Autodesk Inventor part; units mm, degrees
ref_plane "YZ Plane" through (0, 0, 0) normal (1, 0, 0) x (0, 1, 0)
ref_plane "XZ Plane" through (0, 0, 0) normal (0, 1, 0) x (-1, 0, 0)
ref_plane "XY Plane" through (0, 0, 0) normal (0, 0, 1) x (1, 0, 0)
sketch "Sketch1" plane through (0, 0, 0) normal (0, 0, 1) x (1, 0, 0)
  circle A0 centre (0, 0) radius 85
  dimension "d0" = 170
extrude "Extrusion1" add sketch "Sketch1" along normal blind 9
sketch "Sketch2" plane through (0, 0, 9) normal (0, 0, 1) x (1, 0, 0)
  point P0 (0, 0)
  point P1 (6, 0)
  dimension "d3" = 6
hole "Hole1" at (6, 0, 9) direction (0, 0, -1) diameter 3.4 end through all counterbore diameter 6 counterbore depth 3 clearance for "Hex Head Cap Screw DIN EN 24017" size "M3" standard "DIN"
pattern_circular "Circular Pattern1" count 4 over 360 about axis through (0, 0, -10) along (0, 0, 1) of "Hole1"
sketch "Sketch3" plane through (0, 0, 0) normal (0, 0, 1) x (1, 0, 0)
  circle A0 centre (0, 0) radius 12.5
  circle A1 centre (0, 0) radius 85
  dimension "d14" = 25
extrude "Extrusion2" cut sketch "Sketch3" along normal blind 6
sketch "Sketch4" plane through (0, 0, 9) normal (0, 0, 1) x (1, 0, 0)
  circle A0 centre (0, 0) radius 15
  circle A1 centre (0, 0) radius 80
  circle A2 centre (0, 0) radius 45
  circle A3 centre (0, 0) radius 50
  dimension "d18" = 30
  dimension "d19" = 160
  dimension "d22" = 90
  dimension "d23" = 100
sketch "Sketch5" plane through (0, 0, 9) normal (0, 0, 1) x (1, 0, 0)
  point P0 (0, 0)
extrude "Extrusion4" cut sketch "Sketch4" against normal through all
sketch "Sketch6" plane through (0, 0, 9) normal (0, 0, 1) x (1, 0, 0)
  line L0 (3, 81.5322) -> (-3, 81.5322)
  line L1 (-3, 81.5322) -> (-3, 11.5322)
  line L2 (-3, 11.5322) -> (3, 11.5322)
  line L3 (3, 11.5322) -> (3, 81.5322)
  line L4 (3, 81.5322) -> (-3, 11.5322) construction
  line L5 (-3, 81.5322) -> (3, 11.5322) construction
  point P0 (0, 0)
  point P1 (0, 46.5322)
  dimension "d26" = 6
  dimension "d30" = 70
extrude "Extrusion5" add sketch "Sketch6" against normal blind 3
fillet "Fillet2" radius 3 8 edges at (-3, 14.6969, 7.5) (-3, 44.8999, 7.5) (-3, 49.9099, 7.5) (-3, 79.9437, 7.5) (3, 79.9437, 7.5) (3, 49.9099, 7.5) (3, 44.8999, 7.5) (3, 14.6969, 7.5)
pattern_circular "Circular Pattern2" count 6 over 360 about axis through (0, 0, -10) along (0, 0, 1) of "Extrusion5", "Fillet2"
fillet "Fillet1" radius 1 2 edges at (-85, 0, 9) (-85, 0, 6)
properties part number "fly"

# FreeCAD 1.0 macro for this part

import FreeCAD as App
import Part
import Sketcher


def edges_at(feature, points):
    """Names of the edges that pass closest to the given points."""
    edges = feature.Shape.Edges
    near = lambda p: min(range(len(edges)), key=lambda i: edges[i].distToShape(Part.Vertex(*p))[0])
    return sorted({f"Edge{near(p) + 1}" for p in points})


def add_polygon(sketch, points):
    """Adds a closed chain of lines whose ends are joined by coincident constraints."""
    first, n = sketch.GeometryCount, len(points)
    for a, b in zip(points, points[1:] + points[:1]):
        sketch.addGeometry(Part.LineSegment(App.Vector(*a, 0), App.Vector(*b, 0)), False)
    for i in range(n):
        sketch.addConstraint(Sketcher.Constraint("Coincident", first + i, 2, first + (i + 1) % n, 1))

doc = App.newDocument("Part")
params = doc.addObject("Spreadsheet::Sheet", "Params")
for row, (alias, value) in enumerate([
    ("sketch1_diameter", "170 mm"),
    ("pad1_length", "9 mm"),
    ("sketch2_diameter", "3.4 mm"),
    ("hole_diameter", "3.4 mm"),
    ("hole_cbore_diameter", "6 mm"),
    ("hole_cbore_depth", "3 mm"),
    ("sketch3_diameter", "25 mm"),
    ("sketch3_diameter2", "170 mm"),
    ("pocket1_length", "6 mm"),
    ("sketch4_diameter", "160 mm"),
    ("sketch4_diameter2", "100 mm"),
    ("sketch4_diameter3", "90 mm"),
    ("sketch4_diameter4", "30 mm"),
    ("sketch5_width", "6 mm"),
    ("sketch5_height", "70 mm"),
    ("pad2_length", "3 mm"),
    ("fillet_radius", "3 mm"),
    ("fillet2_radius", "1 mm"),
], start=1):
    params.set(f"A{row}", alias)
    params.set(f"B{row}", "=" + value)
    params.setAlias(f"B{row}", alias)

body = doc.addObject("PartDesign::Body", "Body")
body.AllowCompound = True

# Sketch on XY plane
sketch1 = body.newObject("Sketcher::SketchObject", "Sketch")
sketch1.AttachmentSupport = (doc.getObject("XY_Plane"), [""])
sketch1.MapMode = "FlatFace"
sketch1.addGeometry(Part.Circle(App.Vector(0, 0, 0), App.Vector(0, 0, 1), 85), False)
sketch1.addConstraint([
    Sketcher.Constraint("Coincident", 0, 3, -1, 1),
    Sketcher.Constraint("Diameter", 0, 170.0),
])
sketch1.setExpression("Constraints[1]", "Params.sketch1_diameter")
pad1 = body.newObject("PartDesign::Pad", "Pad")
pad1.Profile = sketch1
pad1.setExpression("Length", "Params.pad1_length")

# Sketch on XY plane
sketch2 = body.newObject("Sketcher::SketchObject", "Sketch001")
sketch2.AttachmentSupport = (doc.getObject("XY_Plane"), [""])
sketch2.MapMode = "FlatFace"
sketch2.AttachmentOffset = App.Placement(App.Vector(0, 0, 9), App.Rotation())
sketch2.addGeometry(Part.Circle(App.Vector(6, 0, 0), App.Vector(0, 0, 1), 1.7), False)
sketch2.addConstraint([
    Sketcher.Constraint("PointOnObject", 0, 3, -1),
    Sketcher.Constraint("Diameter", 0, 3.4),
    Sketcher.Constraint("DistanceX", -1, 1, 0, 3, 6.0),
])
sketch2.setExpression("Constraints[1]", "Params.sketch2_diameter")
doc.recompute()
hole = body.newObject("PartDesign::Hole", "Hole")
hole.Profile = sketch2
hole.ThreadType = "None"
hole.setExpression("Diameter", "Params.hole_diameter")
hole.DepthType = "ThroughAll"
hole.HoleCutType = "Counterbore"
hole.setExpression("HoleCutDiameter", "Params.hole_cbore_diameter")
hole.setExpression("HoleCutDepth", "Params.hole_cbore_depth")
doc.recompute()

polarpattern = body.newObject("PartDesign::PolarPattern", "PolarPattern")
polarpattern.Originals = [hole]
polarpattern.Axis = (doc.getObject("Z_Axis"), [""])
polarpattern.Angle = 360
polarpattern.Occurrences = 4
body.Tip = polarpattern

# Sketch on XY plane
sketch3 = body.newObject("Sketcher::SketchObject", "Sketch002")
sketch3.AttachmentSupport = (doc.getObject("XY_Plane"), [""])
sketch3.MapMode = "FlatFace"
sketch3.addGeometry([
    Part.Circle(App.Vector(0, 0, 0), App.Vector(0, 0, 1), 85),
    Part.Circle(App.Vector(0, 0, 0), App.Vector(0, 0, 1), 12),
], False)
sketch3.addConstraint([
    Sketcher.Constraint("Coincident", 0, 3, -1, 1),
    Sketcher.Constraint("Coincident", 1, 3, -1, 1),
    Sketcher.Constraint("Diameter", 1, 25.0),
    Sketcher.Constraint("Diameter", 0, 170.0),
])
sketch3.setExpression("Constraints[2]", "Params.sketch3_diameter")
sketch3.setExpression("Constraints[3]", "Params.sketch3_diameter2")
pocket1 = body.newObject("PartDesign::Pocket", "Pocket")
pocket1.Profile = sketch3
pocket1.setExpression("Length", "Params.pocket1_length")
pocket1.Reversed = True

# Sketch on XY plane
sketch4 = body.newObject("Sketcher::SketchObject", "Sketch003")
sketch4.AttachmentSupport = (doc.getObject("XY_Plane"), [""])
sketch4.MapMode = "FlatFace"
sketch4.AttachmentOffset = App.Placement(App.Vector(0, 0, 9), App.Rotation())
sketch4.addGeometry([
    Part.Circle(App.Vector(0, 0, 0), App.Vector(0, 0, 1), 80),
    Part.Circle(App.Vector(0, 0, 0), App.Vector(0, 0, 1), 50),
    Part.Circle(App.Vector(0, 0, 0), App.Vector(0, 0, 1), 45),
    Part.Circle(App.Vector(0, 0, 0), App.Vector(0, 0, 1), 15),
], False)
sketch4.addConstraint([
    Sketcher.Constraint("Coincident", 0, 3, -1, 1),
    Sketcher.Constraint("Coincident", 1, 3, -1, 1),
    Sketcher.Constraint("Coincident", 2, 3, -1, 1),
    Sketcher.Constraint("Coincident", 3, 3, -1, 1),
    Sketcher.Constraint("Diameter", 0, 160.0),
    Sketcher.Constraint("Diameter", 1, 100.0),
    Sketcher.Constraint("Diameter", 2, 90.0),
    Sketcher.Constraint("Diameter", 3, 30.0),
])
sketch4.setExpression("Constraints[4]", "Params.sketch4_diameter")
sketch4.setExpression("Constraints[5]", "Params.sketch4_diameter2")
sketch4.setExpression("Constraints[6]", "Params.sketch4_diameter3")
sketch4.setExpression("Constraints[7]", "Params.sketch4_diameter4")
pocket2 = body.newObject("PartDesign::Pocket", "Pocket001")
pocket2.Profile = sketch4
pocket2.Type = "ThroughAll"

# Sketch on XY plane
sketch5 = body.newObject("Sketcher::SketchObject", "Sketch004")
sketch5.AttachmentSupport = (doc.getObject("XY_Plane"), [""])
sketch5.MapMode = "FlatFace"
sketch5.AttachmentOffset = App.Placement(App.Vector(0, 0, 9), App.Rotation())
add_polygon(sketch5, [(3, 12), (3, 82), (-3, 82), (-3, 12)])  # lines 0-3
sketch5.addConstraint([
    Sketcher.Constraint("Vertical", 0),
    Sketcher.Constraint("Horizontal", 1),
    Sketcher.Constraint("Vertical", 2),
    Sketcher.Constraint("Horizontal", 3),
    Sketcher.Constraint("DistanceX", 1, 2, 1, 1, 6.0),
    Sketcher.Constraint("DistanceY", 0, 1, 0, 2, 70.0),
    Sketcher.Constraint("DistanceX", -1, 1, 0, 2, 3.0),
    Sketcher.Constraint("DistanceY", -1, 1, 0, 2, 81.5322),
])
sketch5.setExpression("Constraints[8]", "Params.sketch5_width")
sketch5.setExpression("Constraints[9]", "Params.sketch5_height")
pad2 = body.newObject("PartDesign::Pad", "Pad001")
pad2.Profile = sketch5
pad2.setExpression("Length", "Params.pad2_length")
pad2.Reversed = True
doc.recompute()

fillet = body.newObject("PartDesign::Fillet", "Fillet")
fillet.Base = (pad2, edges_at(pad2, [
    (-3, 14.697, 7.5),
    (-3, 44.9, 7.5),
    (-3, 49.91, 7.5),
    (-3, 79.944, 7.5),
    (3, 79.944, 7.5),
    (3, 49.91, 7.5),
    (3, 44.9, 7.5),
    (3, 14.697, 7.5),
]))
fillet.setExpression("Radius", "Params.fillet_radius")
doc.recompute()

polarpattern2 = body.newObject("PartDesign::PolarPattern", "PolarPattern001")
polarpattern2.Originals = [pad2, fillet]
polarpattern2.Axis = (doc.getObject("Z_Axis"), [""])
polarpattern2.Angle = 360
polarpattern2.Occurrences = 6
body.Tip = polarpattern2
doc.recompute()

fillet2 = body.newObject("PartDesign::Fillet", "Fillet001")
fillet2.Base = (polarpattern2, edges_at(polarpattern2, [(-85, 0, 9), (-85, 0, 6)]))
fillet2.setExpression("Radius", "Params.fillet2_radius")

doc.recompute()
